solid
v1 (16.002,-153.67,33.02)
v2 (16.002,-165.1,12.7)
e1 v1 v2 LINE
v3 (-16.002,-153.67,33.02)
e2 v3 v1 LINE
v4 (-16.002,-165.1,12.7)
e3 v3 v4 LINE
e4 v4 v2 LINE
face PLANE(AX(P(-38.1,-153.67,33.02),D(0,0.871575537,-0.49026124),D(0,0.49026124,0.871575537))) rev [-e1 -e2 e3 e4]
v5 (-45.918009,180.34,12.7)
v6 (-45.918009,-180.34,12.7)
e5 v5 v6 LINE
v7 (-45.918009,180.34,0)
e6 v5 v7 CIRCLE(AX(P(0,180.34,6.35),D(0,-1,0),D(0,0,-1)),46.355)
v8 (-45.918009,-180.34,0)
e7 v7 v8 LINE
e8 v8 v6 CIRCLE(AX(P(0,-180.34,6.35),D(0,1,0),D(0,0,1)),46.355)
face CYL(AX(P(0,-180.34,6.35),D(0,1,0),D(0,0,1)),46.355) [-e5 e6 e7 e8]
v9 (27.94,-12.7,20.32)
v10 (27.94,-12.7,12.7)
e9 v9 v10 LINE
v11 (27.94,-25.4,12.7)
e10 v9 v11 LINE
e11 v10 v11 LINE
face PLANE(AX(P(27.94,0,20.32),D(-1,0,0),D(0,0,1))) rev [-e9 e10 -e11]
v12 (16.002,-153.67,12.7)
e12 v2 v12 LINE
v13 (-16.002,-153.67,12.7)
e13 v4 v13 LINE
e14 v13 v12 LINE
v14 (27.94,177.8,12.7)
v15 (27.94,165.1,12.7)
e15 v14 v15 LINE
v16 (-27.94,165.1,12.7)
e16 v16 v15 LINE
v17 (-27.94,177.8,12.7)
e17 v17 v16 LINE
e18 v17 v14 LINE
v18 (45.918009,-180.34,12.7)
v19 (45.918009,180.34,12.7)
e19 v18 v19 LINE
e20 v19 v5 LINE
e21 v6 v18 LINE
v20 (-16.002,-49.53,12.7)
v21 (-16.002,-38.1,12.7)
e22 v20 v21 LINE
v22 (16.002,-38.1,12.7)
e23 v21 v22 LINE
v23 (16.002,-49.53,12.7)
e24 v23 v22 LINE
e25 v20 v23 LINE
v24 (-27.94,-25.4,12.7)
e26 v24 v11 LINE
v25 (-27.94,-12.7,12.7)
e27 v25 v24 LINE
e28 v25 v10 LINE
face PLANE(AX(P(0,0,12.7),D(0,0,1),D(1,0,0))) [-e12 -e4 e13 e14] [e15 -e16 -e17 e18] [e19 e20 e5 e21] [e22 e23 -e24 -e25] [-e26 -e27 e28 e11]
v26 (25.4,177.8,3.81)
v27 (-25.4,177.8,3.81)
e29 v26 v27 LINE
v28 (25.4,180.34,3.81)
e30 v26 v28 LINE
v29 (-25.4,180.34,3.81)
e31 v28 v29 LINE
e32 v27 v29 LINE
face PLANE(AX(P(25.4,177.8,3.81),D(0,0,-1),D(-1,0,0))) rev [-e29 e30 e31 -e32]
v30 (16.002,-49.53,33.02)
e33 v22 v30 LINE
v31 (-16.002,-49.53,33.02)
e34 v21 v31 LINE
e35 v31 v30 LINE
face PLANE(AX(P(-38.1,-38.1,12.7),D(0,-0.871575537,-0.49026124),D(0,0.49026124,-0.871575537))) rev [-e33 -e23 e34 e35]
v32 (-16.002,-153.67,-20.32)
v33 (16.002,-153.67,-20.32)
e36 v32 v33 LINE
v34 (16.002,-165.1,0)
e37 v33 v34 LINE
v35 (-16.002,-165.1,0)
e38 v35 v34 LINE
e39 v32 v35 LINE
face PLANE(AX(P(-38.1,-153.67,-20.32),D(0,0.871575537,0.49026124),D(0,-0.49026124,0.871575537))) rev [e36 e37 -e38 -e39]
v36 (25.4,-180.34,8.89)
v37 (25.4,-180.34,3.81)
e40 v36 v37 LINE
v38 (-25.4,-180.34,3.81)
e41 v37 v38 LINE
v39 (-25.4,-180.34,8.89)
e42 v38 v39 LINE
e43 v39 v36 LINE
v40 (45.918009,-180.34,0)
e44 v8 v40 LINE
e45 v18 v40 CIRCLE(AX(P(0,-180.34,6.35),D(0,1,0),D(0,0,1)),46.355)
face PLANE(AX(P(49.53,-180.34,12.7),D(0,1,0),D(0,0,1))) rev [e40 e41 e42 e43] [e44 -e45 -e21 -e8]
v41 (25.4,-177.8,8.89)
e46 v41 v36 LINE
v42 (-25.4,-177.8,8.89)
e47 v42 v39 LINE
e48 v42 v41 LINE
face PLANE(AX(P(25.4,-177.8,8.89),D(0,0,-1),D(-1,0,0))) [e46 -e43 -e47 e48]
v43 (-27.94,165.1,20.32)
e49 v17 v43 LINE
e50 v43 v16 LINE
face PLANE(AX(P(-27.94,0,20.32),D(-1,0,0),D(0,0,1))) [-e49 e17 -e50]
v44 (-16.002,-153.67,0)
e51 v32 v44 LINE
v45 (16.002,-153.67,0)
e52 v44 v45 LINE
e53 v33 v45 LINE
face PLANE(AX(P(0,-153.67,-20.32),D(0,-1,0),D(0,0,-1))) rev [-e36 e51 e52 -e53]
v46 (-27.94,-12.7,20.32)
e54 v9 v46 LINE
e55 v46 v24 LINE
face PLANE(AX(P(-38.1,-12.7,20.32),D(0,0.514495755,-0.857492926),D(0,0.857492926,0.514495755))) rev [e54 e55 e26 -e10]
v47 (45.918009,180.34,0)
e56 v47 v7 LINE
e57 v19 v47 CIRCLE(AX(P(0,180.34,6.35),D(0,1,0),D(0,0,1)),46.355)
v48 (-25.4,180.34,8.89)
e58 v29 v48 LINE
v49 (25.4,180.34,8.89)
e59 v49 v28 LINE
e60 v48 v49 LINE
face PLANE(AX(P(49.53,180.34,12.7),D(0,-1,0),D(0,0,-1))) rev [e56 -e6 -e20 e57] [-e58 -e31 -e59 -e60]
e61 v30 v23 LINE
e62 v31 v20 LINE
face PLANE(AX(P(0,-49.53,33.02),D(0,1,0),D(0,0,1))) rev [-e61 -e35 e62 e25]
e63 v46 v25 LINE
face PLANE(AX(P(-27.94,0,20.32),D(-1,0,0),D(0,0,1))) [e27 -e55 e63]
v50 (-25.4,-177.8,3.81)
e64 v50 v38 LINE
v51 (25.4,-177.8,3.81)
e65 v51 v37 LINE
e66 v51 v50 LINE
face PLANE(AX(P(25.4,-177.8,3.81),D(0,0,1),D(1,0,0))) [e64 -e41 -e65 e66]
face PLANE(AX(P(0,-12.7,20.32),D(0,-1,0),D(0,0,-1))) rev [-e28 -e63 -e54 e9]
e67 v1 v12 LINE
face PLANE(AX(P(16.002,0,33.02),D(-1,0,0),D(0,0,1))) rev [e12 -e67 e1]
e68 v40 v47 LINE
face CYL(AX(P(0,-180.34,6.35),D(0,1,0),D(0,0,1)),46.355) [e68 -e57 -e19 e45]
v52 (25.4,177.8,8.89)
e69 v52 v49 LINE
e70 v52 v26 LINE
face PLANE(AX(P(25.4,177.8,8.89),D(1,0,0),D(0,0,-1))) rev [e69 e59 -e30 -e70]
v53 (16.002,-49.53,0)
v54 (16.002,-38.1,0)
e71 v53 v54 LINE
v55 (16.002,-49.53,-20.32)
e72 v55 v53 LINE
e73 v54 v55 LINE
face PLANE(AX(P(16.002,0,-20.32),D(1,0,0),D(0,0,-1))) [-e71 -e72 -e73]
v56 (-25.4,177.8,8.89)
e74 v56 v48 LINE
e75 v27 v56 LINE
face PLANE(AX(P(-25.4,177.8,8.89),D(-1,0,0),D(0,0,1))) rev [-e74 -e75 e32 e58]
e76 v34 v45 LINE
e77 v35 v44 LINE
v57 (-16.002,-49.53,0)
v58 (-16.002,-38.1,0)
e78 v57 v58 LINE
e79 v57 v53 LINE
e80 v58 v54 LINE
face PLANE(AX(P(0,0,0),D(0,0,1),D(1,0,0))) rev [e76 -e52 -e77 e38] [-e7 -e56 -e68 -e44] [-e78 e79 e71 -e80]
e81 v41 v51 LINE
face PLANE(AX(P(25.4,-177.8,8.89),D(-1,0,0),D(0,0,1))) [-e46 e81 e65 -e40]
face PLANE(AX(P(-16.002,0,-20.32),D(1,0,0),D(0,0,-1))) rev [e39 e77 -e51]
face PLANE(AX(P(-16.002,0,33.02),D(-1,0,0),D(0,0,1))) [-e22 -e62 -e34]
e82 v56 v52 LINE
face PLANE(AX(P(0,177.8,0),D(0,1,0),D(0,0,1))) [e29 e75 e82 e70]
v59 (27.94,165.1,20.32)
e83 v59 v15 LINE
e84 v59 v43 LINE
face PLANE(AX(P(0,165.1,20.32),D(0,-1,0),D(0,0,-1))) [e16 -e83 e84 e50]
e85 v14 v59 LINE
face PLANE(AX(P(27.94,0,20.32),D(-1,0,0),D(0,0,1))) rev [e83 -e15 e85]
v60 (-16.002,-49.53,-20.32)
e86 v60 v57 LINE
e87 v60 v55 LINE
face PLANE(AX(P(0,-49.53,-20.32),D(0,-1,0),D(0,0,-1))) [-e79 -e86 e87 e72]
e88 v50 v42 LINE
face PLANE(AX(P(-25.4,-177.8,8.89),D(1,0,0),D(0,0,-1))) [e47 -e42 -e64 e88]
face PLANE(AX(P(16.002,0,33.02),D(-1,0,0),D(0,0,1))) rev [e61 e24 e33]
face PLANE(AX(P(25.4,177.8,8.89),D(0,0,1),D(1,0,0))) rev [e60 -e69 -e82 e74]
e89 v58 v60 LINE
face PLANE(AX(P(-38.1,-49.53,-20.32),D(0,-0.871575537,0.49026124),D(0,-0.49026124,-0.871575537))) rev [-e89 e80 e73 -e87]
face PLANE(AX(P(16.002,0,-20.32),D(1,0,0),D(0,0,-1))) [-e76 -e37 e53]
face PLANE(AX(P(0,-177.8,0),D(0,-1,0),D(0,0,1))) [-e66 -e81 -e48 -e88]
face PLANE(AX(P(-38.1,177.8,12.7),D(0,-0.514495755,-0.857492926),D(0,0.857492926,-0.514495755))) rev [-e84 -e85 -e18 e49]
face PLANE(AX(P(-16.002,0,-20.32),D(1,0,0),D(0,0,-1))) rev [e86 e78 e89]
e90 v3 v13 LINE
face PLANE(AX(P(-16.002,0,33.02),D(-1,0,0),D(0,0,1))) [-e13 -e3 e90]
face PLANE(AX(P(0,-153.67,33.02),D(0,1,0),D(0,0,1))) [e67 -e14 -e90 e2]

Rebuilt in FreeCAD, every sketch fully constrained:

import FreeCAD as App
import Part
import Sketcher
Q = App.Units.Quantity

doc = App.newDocument("Part")
body = doc.addObject("PartDesign::Body", "Body")

# Sketch on XY plane
sketch1 = body.newObject("Sketcher::SketchObject", "Sketch")
sketch1.AttachmentSupport = (doc.getObject("XY_Plane"), [""])
sketch1.MapMode = "FlatFace"
sketch1.addGeometry(Part.LineSegment(App.Vector(-49.53, 180.34, 0), App.Vector(-49.53, -180.34, 0)), False)
sketch1.addGeometry(Part.LineSegment(App.Vector(-49.53, -180.34, 0), App.Vector(49.53, -180.34, 0)), False)
sketch1.addGeometry(Part.LineSegment(App.Vector(49.53, -180.34, 0), App.Vector(49.53, 180.34, 0)), False)
sketch1.addGeometry(Part.LineSegment(App.Vector(49.53, 180.34, 0), App.Vector(-49.53, 180.34, 0)), False)
sketch1.addConstraint(Sketcher.Constraint("Coincident", 0, 2, 1, 1))
sketch1.addConstraint(Sketcher.Constraint("Coincident", 1, 2, 2, 1))
sketch1.addConstraint(Sketcher.Constraint("Coincident", 2, 2, 3, 1))
sketch1.addConstraint(Sketcher.Constraint("Coincident", 3, 2, 0, 1))
sketch1.addConstraint(Sketcher.Constraint("Vertical", 0))
sketch1.addConstraint(Sketcher.Constraint("Horizontal", 1))
sketch1.addConstraint(Sketcher.Constraint("Vertical", 2))
sketch1.addConstraint(Sketcher.Constraint("Horizontal", 3))
sketch1.addConstraint(Sketcher.Constraint("Symmetric", 0, 2, 2, 2, -1, 1))
sketch1.addConstraint(Sketcher.Constraint("DistanceX", 1, 1, 1, 2, Q("3.9 in")))
sketch1.addConstraint(Sketcher.Constraint("DistanceY", 0, 2, 0, 1, Q("14.2 in")))
pad1 = body.newObject("PartDesign::Pad", "Pad")
pad1.Profile = sketch1
pad1.Length = Q("0.5 in")

# Sketch on XY plane
sketch2 = body.newObject("Sketcher::SketchObject", "Sketch001")
sketch2.AttachmentSupport = (doc.getObject("XY_Plane"), [""])
sketch2.MapMode = "FlatFace"
sketch2.addGeometry(Part.LineSegment(App.Vector(16.002, -38.1, 0), App.Vector(16.002, -49.53, 0)), False)
sketch2.addGeometry(Part.LineSegment(App.Vector(16.002, -49.53, 0), App.Vector(-16.002, -49.53, 0)), False)
sketch2.addGeometry(Part.LineSegment(App.Vector(-16.002, -49.53, 0), App.Vector(-16.002, -38.1, 0)), False)
sketch2.addGeometry(Part.LineSegment(App.Vector(-16.002, -38.1, 0), App.Vector(16.002, -38.1, 0)), False)
sketch2.addGeometry(Part.LineSegment(App.Vector(16.002, -153.67, 0), App.Vector(16.002, -165.1, 0)), False)
sketch2.addGeometry(Part.LineSegment(App.Vector(16.002, -165.1, 0), App.Vector(-16.002, -165.1, 0)), False)
sketch2.addGeometry(Part.LineSegment(App.Vector(-16.002, -165.1, 0), App.Vector(-16.002, -153.67, 0)), False)
sketch2.addGeometry(Part.LineSegment(App.Vector(-16.002, -153.67, 0), App.Vector(16.002, -153.67, 0)), False)
sketch2.addConstraint(Sketcher.Constraint("Coincident", 0, 2, 1, 1))
sketch2.addConstraint(Sketcher.Constraint("Coincident", 1, 2, 2, 1))
sketch2.addConstraint(Sketcher.Constraint("Coincident", 2, 2, 3, 1))
sketch2.addConstraint(Sketcher.Constraint("Coincident", 3, 2, 0, 1))
sketch2.addConstraint(Sketcher.Constraint("Coincident", 4, 2, 5, 1))
sketch2.addConstraint(Sketcher.Constraint("Coincident", 5, 2, 6, 1))
sketch2.addConstraint(Sketcher.Constraint("Coincident", 6, 2, 7, 1))
sketch2.addConstraint(Sketcher.Constraint("Coincident", 7, 2, 4, 1))
sketch2.addConstraint(Sketcher.Constraint("Vertical", 0))
sketch2.addConstraint(Sketcher.Constraint("Horizontal", 1))
sketch2.addConstraint(Sketcher.Constraint("Vertical", 2))
sketch2.addConstraint(Sketcher.Constraint("Horizontal", 3))
sketch2.addConstraint(Sketcher.Constraint("Vertical", 4))
sketch2.addConstraint(Sketcher.Constraint("Horizontal", 5))
sketch2.addConstraint(Sketcher.Constraint("Vertical", 6))
sketch2.addConstraint(Sketcher.Constraint("Horizontal", 7))
sketch2.addConstraint(Sketcher.Constraint("Vertical", 3, 2, 4, 2))
sketch2.addConstraint(Sketcher.Constraint("Vertical", 2, 2, 5, 2))
sketch2.addConstraint(Sketcher.Constraint("Equal", 2, 4))
sketch2.addConstraint(Sketcher.Constraint("DistanceY", 4, 2, 3, 2, Q("5 in")))
sketch2.addConstraint(Sketcher.Constraint("DistanceX", 1, 2, 1, 1, Q("1.26 in")))
sketch2.addConstraint(Sketcher.Constraint("DistanceY", 0, 2, 0, 1, Q("0.45 in")))
sketch2.addConstraint(Sketcher.Constraint("DistanceY", 2, 2, -1, 1, Q("1.5 in")))
sketch2.addConstraint(Sketcher.Constraint("DistanceX", -1, 1, 0, 2, Q("0.63 in")))
pad2 = body.newObject("PartDesign::Pad", "Pad001")
pad2.Profile = sketch2
pad2.Length = Q("0.8 in")
pad2.Reversed = True

# Sketch on XY plane
sketch3 = body.newObject("Sketcher::SketchObject", "Sketch002")
sketch3.AttachmentSupport = (doc.getObject("XY_Plane"), [""])
sketch3.MapMode = "FlatFace"
sketch3.AttachmentOffset = App.Placement(App.Vector(0, 0, 0.5 * 25.4), App.Rotation())
sketch3.addGeometry(Part.LineSegment(App.Vector(-27.94, 177.8, 0), App.Vector(-27.94, 165.1, 0)), False)
sketch3.addGeometry(Part.LineSegment(App.Vector(-27.94, 165.1, 0), App.Vector(27.94, 165.1, 0)), False)
sketch3.addGeometry(Part.LineSegment(App.Vector(27.94, 165.1, 0), App.Vector(27.94, 177.8, 0)), False)
sketch3.addGeometry(Part.LineSegment(App.Vector(27.94, 177.8, 0), App.Vector(-27.94, 177.8, 0)), False)
sketch3.addGeometry(Part.LineSegment(App.Vector(-27.94, -12.7, 0), App.Vector(-27.94, -25.4, 0)), False)
sketch3.addGeometry(Part.LineSegment(App.Vector(-27.94, -25.4, 0), App.Vector(27.94, -25.4, 0)), False)
sketch3.addGeometry(Part.LineSegment(App.Vector(27.94, -25.4, 0), App.Vector(27.94, -12.7, 0)), False)
sketch3.addGeometry(Part.LineSegment(App.Vector(27.94, -12.7, 0), App.Vector(-27.94, -12.7, 0)), False)
sketch3.addConstraint(Sketcher.Constraint("Coincident", 0, 2, 1, 1))
sketch3.addConstraint(Sketcher.Constraint("Coincident", 1, 2, 2, 1))
sketch3.addConstraint(Sketcher.Constraint("Coincident", 2, 2, 3, 1))
sketch3.addConstraint(Sketcher.Constraint("Coincident", 3, 2, 0, 1))
sketch3.addConstraint(Sketcher.Constraint("Coincident", 4, 2, 5, 1))
sketch3.addConstraint(Sketcher.Constraint("Coincident", 5, 2, 6, 1))
sketch3.addConstraint(Sketcher.Constraint("Coincident", 6, 2, 7, 1))
sketch3.addConstraint(Sketcher.Constraint("Coincident", 7, 2, 4, 1))
sketch3.addConstraint(Sketcher.Constraint("Vertical", 0))
sketch3.addConstraint(Sketcher.Constraint("Horizontal", 1))
sketch3.addConstraint(Sketcher.Constraint("Vertical", 2))
sketch3.addConstraint(Sketcher.Constraint("Horizontal", 3))
sketch3.addConstraint(Sketcher.Constraint("Vertical", 4))
sketch3.addConstraint(Sketcher.Constraint("Horizontal", 5))
sketch3.addConstraint(Sketcher.Constraint("Vertical", 6))
sketch3.addConstraint(Sketcher.Constraint("Horizontal", 7))
sketch3.addConstraint(Sketcher.Constraint("Vertical", 3, 2, 4, 2))
sketch3.addConstraint(Sketcher.Constraint("Vertical", 2, 2, 5, 2))
sketch3.addConstraint(Sketcher.Constraint("Equal", 2, 4))
sketch3.addConstraint(Sketcher.Constraint("DistanceX", 1, 1, 1, 2, Q("2.2 in")))
sketch3.addConstraint(Sketcher.Constraint("DistanceY", 0, 2, 0, 1, Q("0.5 in")))
sketch3.addConstraint(Sketcher.Constraint("DistanceY", -1, 1, 2, 2, Q("7 in")))
sketch3.addConstraint(Sketcher.Constraint("DistanceY", 4, 2, -1, 1, Q("1 in")))
sketch3.addConstraint(Sketcher.Constraint("DistanceX", 0, 2, -1, 1, Q("1.1 in")))
pad3 = body.newObject("PartDesign::Pad", "Pad002")
pad3.Profile = sketch3
pad3.Length = Q("0.6 in")
pad3.Midplane = True
doc.recompute()

datumplane = body.newObject("PartDesign::Plane", "DatumPlane")
datumplane.AttachmentSupport = (doc.getObject("XY_Plane"), [""])
datumplane.MapMode = "FlatFace"
datumplane.AttachmentOffset = App.Placement(App.Vector(0, 0, 0.25 * 25.4), App.Rotation())
mirrored = body.newObject("PartDesign::Mirrored", "Mirrored")
mirrored.Originals = [pad2]
mirrored.MirrorPlane = (datumplane, [""])
body.Tip = mirrored

# Sketch on YZ plane
sketch4 = body.newObject("Sketcher::SketchObject", "Sketch003")
sketch4.AttachmentSupport = (doc.getObject("YZ_Plane"), [""])
sketch4.MapMode = "FlatFace"
sketch4.addGeometry(Part.LineSegment(App.Vector(-153.67, -20.32, 0), App.Vector(-165.1, 0, 0)), False)
sketch4.addGeometry(Part.LineSegment(App.Vector(-165.1, 0, 0), App.Vector(-165.1, -20.32, 0)), False)
sketch4.addGeometry(Part.LineSegment(App.Vector(-165.1, -20.32, 0), App.Vector(-153.67, -20.32, 0)), False)
sketch4.addGeometry(Part.LineSegment(App.Vector(-165.1, 12.7, 0), App.Vector(-153.67, 33.02, 0)), False)
sketch4.addGeometry(Part.LineSegment(App.Vector(-153.67, 33.02, 0), App.Vector(-165.1, 33.02, 0)), False)
sketch4.addGeometry(Part.LineSegment(App.Vector(-165.1, 33.02, 0), App.Vector(-165.1, 12.7, 0)), False)
sketch4.addGeometry(Part.LineSegment(App.Vector(-38.1, 33.02, 0), App.Vector(-49.53, 33.02, 0)), False)
sketch4.addGeometry(Part.LineSegment(App.Vector(-49.53, 33.02, 0), App.Vector(-38.1, 12.7, 0)), False)
sketch4.addGeometry(Part.LineSegment(App.Vector(-38.1, 12.7, 0), App.Vector(-38.1, 33.02, 0)), False)
sketch4.addGeometry(Part.LineSegment(App.Vector(-38.1, 0, 0), App.Vector(-49.53, -20.32, 0)), False)
sketch4.addGeometry(Part.LineSegment(App.Vector(-49.53, -20.32, 0), App.Vector(-38.1, -20.32, 0)), False)
sketch4.addGeometry(Part.LineSegment(App.Vector(-38.1, -20.32, 0), App.Vector(-38.1, 0, 0)), False)
sketch4.addGeometry(Part.LineSegment(App.Vector(165.1, 20.32, 0), App.Vector(177.8, 12.7, 0)), False)
sketch4.addGeometry(Part.LineSegment(App.Vector(177.8, 12.7, 0), App.Vector(177.8, 20.32, 0)), False)
sketch4.addGeometry(Part.LineSegment(App.Vector(177.8, 20.32, 0), App.Vector(165.1, 20.32, 0)), False)
sketch4.addGeometry(Part.LineSegment(App.Vector(-25.4, 12.7, 0), App.Vector(-12.7, 20.32, 0)), False)
sketch4.addGeometry(Part.LineSegment(App.Vector(-12.7, 20.32, 0), App.Vector(-25.4, 20.32, 0)), False)
sketch4.addGeometry(Part.LineSegment(App.Vector(-25.4, 20.32, 0), App.Vector(-25.4, 12.7, 0)), False)
sketch4.addConstraint(Sketcher.Constraint("Coincident", 0, 2, 1, 1))
sketch4.addConstraint(Sketcher.Constraint("Coincident", 1, 2, 2, 1))
sketch4.addConstraint(Sketcher.Constraint("Coincident", 2, 2, 0, 1))
sketch4.addConstraint(Sketcher.Constraint("Coincident", 3, 2, 4, 1))
sketch4.addConstraint(Sketcher.Constraint("Coincident", 4, 2, 5, 1))
sketch4.addConstraint(Sketcher.Constraint("Coincident", 5, 2, 3, 1))
sketch4.addConstraint(Sketcher.Constraint("Coincident", 6, 2, 7, 1))
sketch4.addConstraint(Sketcher.Constraint("Coincident", 7, 2, 8, 1))
sketch4.addConstraint(Sketcher.Constraint("Coincident", 8, 2, 6, 1))
sketch4.addConstraint(Sketcher.Constraint("Coincident", 9, 2, 10, 1))
sketch4.addConstraint(Sketcher.Constraint("Coincident", 10, 2, 11, 1))
sketch4.addConstraint(Sketcher.Constraint("Coincident", 11, 2, 9, 1))
sketch4.addConstraint(Sketcher.Constraint("Coincident", 12, 2, 13, 1))
sketch4.addConstraint(Sketcher.Constraint("Coincident", 13, 2, 14, 1))
sketch4.addConstraint(Sketcher.Constraint("Coincident", 14, 2, 12, 1))
sketch4.addConstraint(Sketcher.Constraint("Coincident", 15, 2, 16, 1))
sketch4.addConstraint(Sketcher.Constraint("Coincident", 16, 2, 17, 1))
sketch4.addConstraint(Sketcher.Constraint("Coincident", 17, 2, 15, 1))
sketch4.addConstraint(Sketcher.Constraint("Vertical", 1))
sketch4.addConstraint(Sketcher.Constraint("Horizontal", 2))
sketch4.addConstraint(Sketcher.Constraint("Horizontal", 4))
sketch4.addConstraint(Sketcher.Constraint("Vertical", 5))
sketch4.addConstraint(Sketcher.Constraint("Horizontal", 6))
sketch4.addConstraint(Sketcher.Constraint("Vertical", 8))
sketch4.addConstraint(Sketcher.Constraint("Horizontal", 10))
sketch4.addConstraint(Sketcher.Constraint("Vertical", 11))
sketch4.addConstraint(Sketcher.Constraint("Vertical", 13))
sketch4.addConstraint(Sketcher.Constraint("Horizontal", 14))
sketch4.addConstraint(Sketcher.Constraint("Horizontal", 16))
sketch4.addConstraint(Sketcher.Constraint("Vertical", 17))
sketch4.addConstraint(Sketcher.Constraint("Symmetric", 1, 2, 14, 2, -1, 1))
sketch4.addConstraint(Sketcher.Constraint("PointOnObject", 0, 2, -1))
sketch4.addConstraint(Sketcher.Constraint("PointOnObject", 11, 2, -1))
sketch4.addConstraint(Sketcher.Constraint("Parallel", 0, 7))
sketch4.addConstraint(Sketcher.Constraint("Parallel", 3, 9))
sketch4.addConstraint(Sketcher.Constraint("Horizontal", 4, 2, 6, 2))
sketch4.addConstraint(Sketcher.Constraint("Horizontal", 5, 2, 7, 2))
sketch4.addConstraint(Sketcher.Constraint("Horizontal", 2, 2, 9, 2))
sketch4.addConstraint(Sketcher.Constraint("Horizontal", 7, 2, 12, 2))
sketch4.addConstraint(Sketcher.Constraint("Horizontal", 14, 2, 15, 2))
sketch4.addConstraint(Sketcher.Constraint("Horizontal", 12, 2, 17, 2))
sketch4.addConstraint(Sketcher.Constraint("Vertical", 2, 2, 3, 2))
sketch4.addConstraint(Sketcher.Constraint("Vertical", 1, 2, 4, 2))
sketch4.addConstraint(Sketcher.Constraint("Vertical", 6, 2, 9, 2))
sketch4.addConstraint(Sketcher.Constraint("Vertical", 8, 2, 10, 2))
sketch4.addConstraint(Sketcher.Constraint("Equal", 14, 16))
sketch4.addConstraint(Sketcher.Constraint("DistanceX", 14, 2, 14, 1, Q("0.5 in")))
sketch4.addConstraint(Sketcher.Constraint("DistanceY", 1, 2, 1, 1, Q("0.8 in")))
sketch4.addConstraint(Sketcher.Constraint("DistanceY", 13, 1, 13, 2, Q("0.3 in")))
sketch4.addConstraint(Sketcher.Constraint("DistanceX", -1, 1, 12, 2, Q("7 in")))
sketch4.addConstraint(Sketcher.Constraint("DistanceX", 16, 2, -1, 1, Q("1 in")))
sketch4.addConstraint(Sketcher.Constraint("DistanceX", 5, 2, 7, 2, Q("5 in")))
sketch4.addConstraint(Sketcher.Constraint("DistanceX", 2, 1, 2, 2, Q("0.45 in")))
pocket1 = body.newObject("PartDesign::Pocket", "Pocket")
pocket1.Profile = sketch4
pocket1.Length = Q("3 in")
pocket1.Midplane = True

# Sketch on XZ plane
sketch5 = body.newObject("Sketcher::SketchObject", "Sketch004")
sketch5.AttachmentSupport = (doc.getObject("XZ_Plane"), [""])
sketch5.MapMode = "FlatFace"
sketch5.AttachmentOffset = App.Placement(App.Vector(0, 0, -7.1 * 25.4), App.Rotation())
sketch5.addGeometry(Part.LineSegment(App.Vector(-25.4, 3.81, 0), App.Vector(-25.4, 8.89, 0)), False)
sketch5.addGeometry(Part.LineSegment(App.Vector(-25.4, 8.89, 0), App.Vector(25.4, 8.89, 0)), False)
sketch5.addGeometry(Part.LineSegment(App.Vector(25.4, 8.89, 0), App.Vector(25.4, 3.81, 0)), False)
sketch5.addGeometry(Part.LineSegment(App.Vector(25.4, 3.81, 0), App.Vector(-25.4, 3.81, 0)), False)
sketch5.addConstraint(Sketcher.Constraint("Coincident", 0, 2, 1, 1))
sketch5.addConstraint(Sketcher.Constraint("Coincident", 1, 2, 2, 1))
sketch5.addConstraint(Sketcher.Constraint("Coincident", 2, 2, 3, 1))
sketch5.addConstraint(Sketcher.Constraint("Coincident", 3, 2, 0, 1))
sketch5.addConstraint(Sketcher.Constraint("Vertical", 0))
sketch5.addConstraint(Sketcher.Constraint("Horizontal", 1))
sketch5.addConstraint(Sketcher.Constraint("Vertical", 2))
sketch5.addConstraint(Sketcher.Constraint("Horizontal", 3))
sketch5.addConstraint(Sketcher.Constraint("DistanceX", 1, 1, 1, 2, Q("2 in")))
sketch5.addConstraint(Sketcher.Constraint("DistanceY", 0, 1, 0, 2, Q("0.2 in")))
sketch5.addConstraint(Sketcher.Constraint("DistanceX", 0, 2, -1, 1, Q("1 in")))
sketch5.addConstraint(Sketcher.Constraint("DistanceY", -1, 1, 0, 2, Q("0.35 in")))
pocket2 = body.newObject("PartDesign::Pocket", "Pocket001")
pocket2.Profile = sketch5
pocket2.Length = Q("0.1 in")
pocket2.Reversed = True
doc.recompute()

mirrored2 = body.newObject("PartDesign::Mirrored", "Mirrored001")
mirrored2.Originals = [pocket2]
mirrored2.MirrorPlane = (doc.getObject("XZ_Plane"), [""])
body.Tip = mirrored2

# Sketch on XZ plane
sketch6 = body.newObject("Sketcher::SketchObject", "Sketch005")
sketch6.AttachmentSupport = (doc.getObject("XZ_Plane"), [""])
sketch6.MapMode = "FlatFace"
sketch6.AttachmentOffset = App.Placement(App.Vector(0, 0, -7.1 * 25.4), App.Rotation())
sketch6.addGeometry(Part.Circle(App.Vector(0, 6.35, 0), App.Vector(0, 0, 1), 50.8), False)
sketch6.addGeometry(Part.Circle(App.Vector(0, 6.35, 0), App.Vector(0, 0, 1), 46.355), False)
sketch6.addConstraint(Sketcher.Constraint("Coincident", 1, 3, 0, 3))
sketch6.addConstraint(Sketcher.Constraint("PointOnObject", 0, 3, -2))
sketch6.addConstraint(Sketcher.Constraint("Diameter", 0, Q("4 in")))
sketch6.addConstraint(Sketcher.Constraint("Diameter", 1, Q("3.65 in")))
sketch6.addConstraint(Sketcher.Constraint("DistanceY", -1, 1, 0, 3, Q("0.25 in")))
pocket3 = body.newObject("PartDesign::Pocket", "Pocket002")
pocket3.Profile = sketch6
pocket3.Type = "ThroughAll"
pocket3.Reversed = True

doc.recompute()
